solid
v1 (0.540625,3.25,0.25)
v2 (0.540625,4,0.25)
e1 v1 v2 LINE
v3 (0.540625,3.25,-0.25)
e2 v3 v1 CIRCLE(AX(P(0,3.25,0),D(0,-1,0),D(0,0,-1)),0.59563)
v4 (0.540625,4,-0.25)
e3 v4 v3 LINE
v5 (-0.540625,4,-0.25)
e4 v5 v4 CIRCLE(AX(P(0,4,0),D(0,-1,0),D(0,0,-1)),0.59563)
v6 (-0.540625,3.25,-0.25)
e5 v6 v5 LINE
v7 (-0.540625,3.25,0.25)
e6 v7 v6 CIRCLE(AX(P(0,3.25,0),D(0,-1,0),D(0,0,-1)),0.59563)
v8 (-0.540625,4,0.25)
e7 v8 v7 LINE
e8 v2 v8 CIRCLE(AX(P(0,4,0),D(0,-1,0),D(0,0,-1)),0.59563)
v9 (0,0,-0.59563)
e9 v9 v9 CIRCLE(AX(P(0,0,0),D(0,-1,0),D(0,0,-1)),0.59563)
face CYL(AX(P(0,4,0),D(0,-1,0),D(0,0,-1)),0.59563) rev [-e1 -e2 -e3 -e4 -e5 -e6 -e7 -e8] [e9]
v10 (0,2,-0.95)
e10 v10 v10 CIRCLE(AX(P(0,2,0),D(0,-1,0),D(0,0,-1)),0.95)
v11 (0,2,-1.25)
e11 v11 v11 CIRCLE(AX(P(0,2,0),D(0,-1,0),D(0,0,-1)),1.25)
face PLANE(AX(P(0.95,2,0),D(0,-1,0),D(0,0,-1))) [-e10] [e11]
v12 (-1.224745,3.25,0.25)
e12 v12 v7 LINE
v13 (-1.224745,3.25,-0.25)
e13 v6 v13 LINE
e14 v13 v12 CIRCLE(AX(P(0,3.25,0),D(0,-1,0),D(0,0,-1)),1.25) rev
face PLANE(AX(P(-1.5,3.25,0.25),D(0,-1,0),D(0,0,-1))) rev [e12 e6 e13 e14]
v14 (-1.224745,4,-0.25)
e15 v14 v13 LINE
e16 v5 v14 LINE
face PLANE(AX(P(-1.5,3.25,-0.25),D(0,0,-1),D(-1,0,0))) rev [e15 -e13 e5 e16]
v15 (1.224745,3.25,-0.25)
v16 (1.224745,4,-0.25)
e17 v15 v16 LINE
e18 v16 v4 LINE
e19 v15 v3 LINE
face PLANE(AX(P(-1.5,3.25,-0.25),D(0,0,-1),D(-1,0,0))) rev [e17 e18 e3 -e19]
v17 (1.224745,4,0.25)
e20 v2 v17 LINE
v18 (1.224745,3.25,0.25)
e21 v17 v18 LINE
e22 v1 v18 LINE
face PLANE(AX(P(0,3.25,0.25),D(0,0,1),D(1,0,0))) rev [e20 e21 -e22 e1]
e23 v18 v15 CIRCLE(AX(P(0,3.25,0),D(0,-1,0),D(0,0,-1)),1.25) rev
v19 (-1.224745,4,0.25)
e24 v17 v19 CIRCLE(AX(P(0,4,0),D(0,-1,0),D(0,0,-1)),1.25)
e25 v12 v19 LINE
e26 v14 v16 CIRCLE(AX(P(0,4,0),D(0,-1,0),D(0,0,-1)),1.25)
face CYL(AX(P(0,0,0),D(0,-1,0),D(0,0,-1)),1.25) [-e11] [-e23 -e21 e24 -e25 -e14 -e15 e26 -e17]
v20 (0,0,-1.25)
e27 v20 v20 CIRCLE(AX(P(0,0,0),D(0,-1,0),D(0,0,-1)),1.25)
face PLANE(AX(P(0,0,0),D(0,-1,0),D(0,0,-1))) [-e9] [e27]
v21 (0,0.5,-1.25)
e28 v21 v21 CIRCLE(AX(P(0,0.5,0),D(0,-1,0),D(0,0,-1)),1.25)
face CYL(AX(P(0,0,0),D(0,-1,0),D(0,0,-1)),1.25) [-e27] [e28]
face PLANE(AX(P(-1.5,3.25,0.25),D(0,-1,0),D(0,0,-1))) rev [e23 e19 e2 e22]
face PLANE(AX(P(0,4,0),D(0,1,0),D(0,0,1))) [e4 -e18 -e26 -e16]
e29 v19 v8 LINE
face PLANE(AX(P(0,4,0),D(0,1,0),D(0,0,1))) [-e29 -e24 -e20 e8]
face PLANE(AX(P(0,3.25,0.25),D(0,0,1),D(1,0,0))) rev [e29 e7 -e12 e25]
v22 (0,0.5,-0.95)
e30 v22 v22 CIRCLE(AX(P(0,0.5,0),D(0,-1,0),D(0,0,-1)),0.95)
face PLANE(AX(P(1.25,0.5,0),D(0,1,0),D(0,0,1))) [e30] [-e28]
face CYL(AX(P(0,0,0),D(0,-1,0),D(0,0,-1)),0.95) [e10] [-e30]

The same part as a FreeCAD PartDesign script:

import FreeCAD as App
import Part
import Sketcher
from FreeCAD import Vector


def add_polygon(sketch, points):
    """Adds a closed chain of lines whose ends are joined by coincident constraints."""
    first, n = sketch.GeometryCount, len(points)
    for a, b in zip(points, points[1:] + points[:1]):
        sketch.addGeometry(Part.LineSegment(App.Vector(*a, 0), App.Vector(*b, 0)), False)
    for i in range(n):
        sketch.addConstraint(Sketcher.Constraint("Coincident", first + i, 2, first + (i + 1) % n, 1))

doc = App.newDocument("Part")
params = doc.addObject("Spreadsheet::Sheet", "Params")
for row, (alias, value) in enumerate([
    ("sketch1_height", "2 mm"),
    ("sketch1_height2", "4 mm"),
    ("sketch1_width", "0.3 mm"),
    ("sketch1_height3", "0.5 mm"),
    ("sketch1_width2", "1.25 mm"),
    ("revolution_angle", "360 deg"),
    ("sketch2_width", "3 mm"),
    ("sketch2_height", "0.5 mm"),
    ("pocket1_length", "0.75 mm"),
], start=1):
    params.set(f"A{row}", alias)
    params.set(f"B{row}", "=" + value)
    params.setAlias(f"B{row}", alias)

body = doc.addObject("PartDesign::Body", "Body")

# Sketch on XY plane
sketch1 = body.newObject("Sketcher::SketchObject", "Sketch")
sketch1.AttachmentSupport = (doc.getObject("XY_Plane"), [""])
sketch1.MapMode = "FlatFace"
add_polygon(sketch1, [(0, 0), (1.25, 0), (1.25, 0.5), (0.95, 0.5), (0.95, 2), (1.25, 2), (1.25, 4), (0, 4)])  # lines 0-7
sketch1.addConstraint([
    Sketcher.Constraint("Horizontal", 0),
    Sketcher.Constraint("Vertical", 1),
    Sketcher.Constraint("Horizontal", 2),
    Sketcher.Constraint("Vertical", 3),
    Sketcher.Constraint("Horizontal", 4),
    Sketcher.Constraint("Vertical", 5),
    Sketcher.Constraint("Horizontal", 6),
    Sketcher.Constraint("Vertical", 7),
    Sketcher.Constraint("Coincident", 7, 2, -1, 1),
    Sketcher.Constraint("Vertical", 1, 2, 4, 2),
    Sketcher.Constraint("DistanceY", 5, 1, 5, 2, 2.0),
    Sketcher.Constraint("DistanceY", 7, 2, 7, 1, 4.0),
    Sketcher.Constraint("DistanceX", 2, 2, 2, 1, 0.3),
    Sketcher.Constraint("DistanceY", 1, 1, 1, 2, 0.5),
    Sketcher.Constraint("DistanceX", 0, 1, 0, 2, 1.25),
])
sketch1.setExpression("Constraints[18]", "Params.sketch1_height")
sketch1.setExpression("Constraints[19]", "Params.sketch1_height2")
sketch1.setExpression("Constraints[20]", "Params.sketch1_width")
sketch1.setExpression("Constraints[21]", "Params.sketch1_height3")
sketch1.setExpression("Constraints[22]", "Params.sketch1_width2")
revolution = body.newObject("PartDesign::Revolution", "Revolution")
revolution.Profile = sketch1
revolution.ReferenceAxis = (sketch1, ["V_Axis"])
revolution.setExpression("Angle", "Params.revolution_angle")

# Sketch on XZ plane
sketch2 = body.newObject("Sketcher::SketchObject", "Sketch001")
sketch2.AttachmentSupport = (doc.getObject("XZ_Plane"), [""])
sketch2.MapMode = "FlatFace"
sketch2.AttachmentOffset = App.Placement(Vector(0, 0, -4), App.Rotation())
add_polygon(sketch2, [(-1.5, 0.25), (1.5, 0.25), (1.5, -0.25), (-1.5, -0.25)])  # lines 0-3
sketch2.addConstraint([
    Sketcher.Constraint("Horizontal", 0),
    Sketcher.Constraint("Vertical", 1),
    Sketcher.Constraint("Horizontal", 2),
    Sketcher.Constraint("Vertical", 3),
    Sketcher.Constraint("Symmetric", 0, 2, 2, 2, -1, 1),
    Sketcher.Constraint("DistanceX", 0, 1, 0, 2, 3.0),
    Sketcher.Constraint("DistanceY", 1, 2, 1, 1, 0.5),
])
sketch2.setExpression("Constraints[9]", "Params.sketch2_width")
sketch2.setExpression("Constraints[10]", "Params.sketch2_height")
pocket1 = body.newObject("PartDesign::Pocket", "Pocket")
pocket1.Profile = sketch2
pocket1.setExpression("Length", "Params.pocket1_length")
pocket1.Reversed = True

# Sketch on XZ plane
sketch3 = body.newObject("Sketcher::SketchObject", "Sketch002")
sketch3.AttachmentSupport = (doc.getObject("XZ_Plane"), [""])
sketch3.MapMode = "FlatFace"
sketch3.addGeometry(Part.Circle(Vector(0, 0, 0), Vector(0, 0, 1), 0.59563), False)
sketch3.addConstraint([
    Sketcher.Constraint("Coincident", 0, 3, -1, 1),
    Sketcher.Constraint("Diameter", 0, 1.19126),
])
pocket2 = body.newObject("PartDesign::Pocket", "Pocket001")
pocket2.Profile = sketch3
pocket2.Type = "ThroughAll"

doc.recompute()
